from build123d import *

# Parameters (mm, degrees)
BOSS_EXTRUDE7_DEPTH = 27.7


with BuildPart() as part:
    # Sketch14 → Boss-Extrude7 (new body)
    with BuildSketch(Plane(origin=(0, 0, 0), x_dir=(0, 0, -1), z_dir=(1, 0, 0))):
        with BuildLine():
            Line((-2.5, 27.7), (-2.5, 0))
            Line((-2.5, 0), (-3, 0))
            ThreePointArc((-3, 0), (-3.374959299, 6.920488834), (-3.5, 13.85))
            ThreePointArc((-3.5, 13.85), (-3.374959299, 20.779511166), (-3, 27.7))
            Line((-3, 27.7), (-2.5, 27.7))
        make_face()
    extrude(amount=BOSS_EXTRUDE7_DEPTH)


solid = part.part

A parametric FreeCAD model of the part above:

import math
import FreeCAD as App
import Part
import Sketcher

V = App.Vector
Q = App.Units.Quantity

doc = App.newDocument("Part")
body = doc.addObject("PartDesign::Body", "Body")

# Sketch on YZ plane
sketch1 = body.newObject("Sketcher::SketchObject", "Sketch")
sketch1.AttachmentSupport = (doc.getObject("YZ_Plane"), [""])
sketch1.MapMode = "FlatFace"
sketch1.addGeometry(Part.LineSegment(V(0, 2.5, 0), V(27.7, 2.5, 0)), False)
sketch1.addGeometry(Part.LineSegment(V(27.7, 2.5, 0), V(27.7, 3, 0)), False)
sketch1.addGeometry(Part.ArcOfCircle(Part.Circle(V(13.9, -188.6, 0), V(0, 0, 1), 192.1), math.radians(85.86), math.radians(90)), False)
sketch1.addGeometry(Part.ArcOfCircle(Part.Circle(V(13.8, -188.6, 0), V(0, 0, 1), 192.1), math.radians(90), math.radians(94.14)), False)
sketch1.addGeometry(Part.LineSegment(V(0, 3, 0), V(0, 2.5, 0)), False)
sketch1.addConstraint(Sketcher.Constraint("Coincident", 0, 2, 1, 1))
sketch1.addConstraint(Sketcher.Constraint("Coincident", 1, 2, 2, 1))
sketch1.addConstraint(Sketcher.Constraint("Tangent", 2, 2, 3, 1))
sketch1.addConstraint(Sketcher.Constraint("Coincident", 3, 2, 4, 1))
sketch1.addConstraint(Sketcher.Constraint("Coincident", 4, 2, 0, 1))
sketch1.addConstraint(Sketcher.Constraint("Horizontal", 0))
sketch1.addConstraint(Sketcher.Constraint("Vertical", 1))
sketch1.addConstraint(Sketcher.Constraint("Vertical", 4))
sketch1.addConstraint(Sketcher.Constraint("Equal", 2, 3))
sketch1.addConstraint(Sketcher.Constraint("PointOnObject", 3, 2, -2))
sketch1.addConstraint(Sketcher.Constraint("Horizontal", 1, 2, 3, 2))
sketch1.addConstraint(Sketcher.Constraint("Vertical", 3, 3, 2, 2))
sketch1.addConstraint(Sketcher.Constraint("DistanceX", 0, 1, 0, 2, Q("27.7 mm")))
sketch1.addConstraint(Sketcher.Constraint("DistanceY", 1, 1, 1, 2, Q("0.5 mm")))
sketch1.addConstraint(Sketcher.Constraint("DistanceY", -1, 1, 1, 2, Q("3 mm")))
sketch1.addConstraint(Sketcher.Constraint("Radius", 2, Q("192.0725 mm")))
pad1 = body.newObject("PartDesign::Pad", "Pad")
pad1.Profile = sketch1
pad1.Length = 27.7

doc.recompute()
